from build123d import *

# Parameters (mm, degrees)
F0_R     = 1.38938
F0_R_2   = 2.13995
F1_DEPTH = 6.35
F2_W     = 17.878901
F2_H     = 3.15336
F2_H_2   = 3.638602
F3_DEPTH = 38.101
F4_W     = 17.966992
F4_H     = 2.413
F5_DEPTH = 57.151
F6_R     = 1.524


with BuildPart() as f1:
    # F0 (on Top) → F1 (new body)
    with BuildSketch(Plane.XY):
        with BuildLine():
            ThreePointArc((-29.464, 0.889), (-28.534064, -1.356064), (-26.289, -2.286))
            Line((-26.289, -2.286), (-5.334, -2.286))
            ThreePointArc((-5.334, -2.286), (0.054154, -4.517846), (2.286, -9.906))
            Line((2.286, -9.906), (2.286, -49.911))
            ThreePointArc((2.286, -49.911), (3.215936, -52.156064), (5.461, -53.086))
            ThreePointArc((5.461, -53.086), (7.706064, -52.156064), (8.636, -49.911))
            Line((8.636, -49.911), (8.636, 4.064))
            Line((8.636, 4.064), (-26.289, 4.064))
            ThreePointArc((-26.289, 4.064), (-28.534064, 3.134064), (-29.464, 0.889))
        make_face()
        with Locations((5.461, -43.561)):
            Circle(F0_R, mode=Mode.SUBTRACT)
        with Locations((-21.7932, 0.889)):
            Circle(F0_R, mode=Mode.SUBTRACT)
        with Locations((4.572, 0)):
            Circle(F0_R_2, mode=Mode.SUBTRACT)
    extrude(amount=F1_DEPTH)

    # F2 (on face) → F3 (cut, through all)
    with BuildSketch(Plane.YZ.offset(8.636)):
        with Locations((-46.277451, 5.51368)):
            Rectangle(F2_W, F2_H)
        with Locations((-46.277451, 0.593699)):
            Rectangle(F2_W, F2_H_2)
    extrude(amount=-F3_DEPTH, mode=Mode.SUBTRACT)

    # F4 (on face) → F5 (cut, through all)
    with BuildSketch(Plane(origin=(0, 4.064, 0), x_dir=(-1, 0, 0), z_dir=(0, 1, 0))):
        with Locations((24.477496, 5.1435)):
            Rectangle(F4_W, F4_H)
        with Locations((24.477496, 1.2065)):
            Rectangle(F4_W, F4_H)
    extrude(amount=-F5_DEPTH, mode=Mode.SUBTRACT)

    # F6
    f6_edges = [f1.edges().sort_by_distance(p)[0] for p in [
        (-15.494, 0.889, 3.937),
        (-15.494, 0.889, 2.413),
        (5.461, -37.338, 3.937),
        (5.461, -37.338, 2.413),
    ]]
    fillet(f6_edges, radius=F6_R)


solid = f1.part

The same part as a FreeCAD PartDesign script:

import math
import FreeCAD as App
import Part
import Sketcher

V = App.Vector
Q = App.Units.Quantity


def edges_at(feature, points):
    """Names of the edges that pass closest to the given points."""
    edges = feature.Shape.Edges
    near = lambda p: min(range(len(edges)), key=lambda i: edges[i].distToShape(Part.Vertex(*p))[0])
    return sorted({f"Edge{near(p) + 1}" for p in points})


def add_polygon(sketch, points):
    """Adds a closed chain of lines whose ends are joined by coincident constraints."""
    first, n = sketch.GeometryCount, len(points)
    for a, b in zip(points, points[1:] + points[:1]):
        sketch.addGeometry(Part.LineSegment(App.Vector(*a, 0), App.Vector(*b, 0)), False)
    for i in range(n):
        sketch.addConstraint(Sketcher.Constraint("Coincident", first + i, 2, first + (i + 1) % n, 1))

doc = App.newDocument("Part")
body = doc.addObject("PartDesign::Body", "Body")

# Sketch on XY plane
sketch1 = body.newObject("Sketcher::SketchObject", "Sketch")
sketch1.AttachmentSupport = (doc.getObject("XY_Plane"), [""])
sketch1.MapMode = "FlatFace"
sketch1.addGeometry([
    Part.ArcOfCircle(Part.Circle(V(-26.289, 0.889, 0), V(0, 0, 1), 3.175), math.radians(-179.999998), math.radians(-90.000002)),  # 0
    Part.LineSegment(V(-26.289, -2.286, 0), V(-5.334, -2.286, 0)),  # 1
    Part.ArcOfCircle(Part.Circle(V(-5.333999, -9.905999, 0), V(0, 0, 1), 7.619999), math.radians(-0.000008), math.radians(90.000008)),  # 2
    Part.LineSegment(V(2.286, -9.906, 0), V(2.286, -49.911, 0)),  # 3
    Part.ArcOfCircle(Part.Circle(V(5.461, -49.911, 0), V(0, 0, 1), 3.175), math.radians(-179.999998), math.radians(-90.000002)),  # 4
    Part.ArcOfCircle(Part.Circle(V(5.461, -49.911, 0), V(0, 0, 1), 3.175), math.radians(-89.999998), math.radians(-0.000002)),  # 5
    Part.LineSegment(V(8.636, -49.911, 0), V(8.636, 4.064, 0)),  # 6
    Part.LineSegment(V(8.636, 4.064, 0), V(-26.289, 4.064, 0)),  # 7
    Part.ArcOfCircle(Part.Circle(V(-26.289, 0.889, 0), V(0, 0, 1), 3.175), math.radians(90.000002), math.radians(179.999998)),  # 8
    Part.Circle(V(5.461, -43.561, 0), V(0, 0, 1), 1.38938),  # 9
    Part.Circle(V(-21.7932, 0.889, 0), V(0, 0, 1), 1.38938),  # 10
    Part.Circle(V(4.572, 0, 0), V(0, 0, 1), 2.13995),  # 11
], False)
sketch1.addConstraint([
    Sketcher.Constraint("Tangent", 0, 2, 1, 1),
    Sketcher.Constraint("Tangent", 1, 2, 2, 2),
    Sketcher.Constraint("Tangent", 2, 1, 3, 1),
    Sketcher.Constraint("Tangent", 3, 2, 4, 1),
    Sketcher.Constraint("Tangent", 4, 2, 5, 1),
    Sketcher.Constraint("Tangent", 5, 2, 6, 1),
    Sketcher.Constraint("Coincident", 6, 2, 7, 1),
    Sketcher.Constraint("Tangent", 7, 2, 8, 1),
    Sketcher.Constraint("Tangent", 8, 2, 0, 1),
    Sketcher.Constraint("Horizontal", 1),
    Sketcher.Constraint("Vertical", 3),
    Sketcher.Constraint("Vertical", 6),
    Sketcher.Constraint("Horizontal", 7),
    Sketcher.Constraint("Equal", 0, 4),
    Sketcher.Constraint("Equal", 4, 5),
    Sketcher.Constraint("Equal", 5, 8),
    Sketcher.Constraint("Equal", 9, 10),
    Sketcher.Constraint("PointOnObject", 11, 3, -1),
    Sketcher.Constraint("Horizontal", 8, 3, 10, 3),
    Sketcher.Constraint("Horizontal", 10, 3, 8, 2),
    Sketcher.Constraint("Vertical", 5, 3, 9, 3),
    Sketcher.Constraint("Vertical", 9, 3, 4, 2),
    Sketcher.Constraint("Radius", 2, Q("0.3 in")),
    Sketcher.Constraint("Radius", 0, Q("0.125 in")),
    Sketcher.Constraint("DistanceY", 4, 3, 0, 3, Q("2 in")),
    Sketcher.Constraint("Diameter", 9, Q("0.1094 in")),
    Sketcher.Constraint("Diameter", 11, Q("0.1685 in")),
    Sketcher.Constraint("DistanceX", 1, 1, 1, 2, Q("0.825 in")),
    Sketcher.Constraint("DistanceX", 2, 3, -1, 1, Q("0.21 in")),
    Sketcher.Constraint("DistanceY", 2, 3, -1, 1, Q("0.39 in")),
    Sketcher.Constraint("DistanceX", -1, 1, 11, 3, Q("0.18 in")),
    Sketcher.Constraint("DistanceY", 4, 3, 9, 3, Q("0.25 in")),
    Sketcher.Constraint("DistanceX", 10, 3, -1, 1, Q("0.858 in")),
])
pad1 = body.newObject("PartDesign::Pad", "Pad")
pad1.Profile = sketch1
pad1.Length = Q("0.25 in")

# Sketch on YZ plane
sketch2 = body.newObject("Sketcher::SketchObject", "Sketch001")
sketch2.AttachmentSupport = (doc.getObject("YZ_Plane"), [""])
sketch2.MapMode = "FlatFace"
sketch2.AttachmentOffset = App.Placement(V(0, 0, 0.34 * 25.4), App.Rotation())
add_polygon(sketch2, [(-55.216901, 7.09036), (-55.216901, 3.937), (-37.338, 3.937), (-37.338, 7.09036)])  # lines 0-3
add_polygon(sketch2, [(-55.216901, 2.413), (-55.216901, -1.225602), (-37.338, -1.225602), (-37.338, 2.413)])  # lines 4-7
sketch2.addConstraint([
    Sketcher.Constraint("Vertical", 0),
    Sketcher.Constraint("Horizontal", 1),
    Sketcher.Constraint("Vertical", 2),
    Sketcher.Constraint("Horizontal", 3),
    Sketcher.Constraint("Vertical", 4),
    Sketcher.Constraint("Horizontal", 5),
    Sketcher.Constraint("Vertical", 6),
    Sketcher.Constraint("Horizontal", 7),
    Sketcher.Constraint("Vertical", 3, 2, 4, 2),
    Sketcher.Constraint("Vertical", 2, 2, 5, 2),
    Sketcher.Constraint("DistanceX", 1, 2, -1, 1, Q("1.47 in")),
    Sketcher.Constraint("DistanceY", 6, 2, 1, 2, Q("0.06 in")),
    Sketcher.Constraint("DistanceY", -1, 1, 0, 2, Q("0.155 in")),
    Sketcher.Constraint("DistanceX", 1, 1, 1, 2, Q("17.878901 mm")),
    Sketcher.Constraint("DistanceY", 4, 2, 4, 1, Q("3.638602 mm")),
    Sketcher.Constraint("DistanceY", 4, 2, 3, 2, Q("0.3274001 in")),
])
pocket1 = body.newObject("PartDesign::Pocket", "Pocket")
pocket1.Profile = sketch2
pocket1.Type = "ThroughAll"

# Sketch on XZ plane
sketch3 = body.newObject("Sketcher::SketchObject", "Sketch002")
sketch3.AttachmentSupport = (doc.getObject("XZ_Plane"), [""])
sketch3.MapMode = "FlatFace"
sketch3.AttachmentOffset = App.Placement(V(0, 0, -0.16 * 25.4), App.Rotation())
add_polygon(sketch3, [(-15.494, 6.35), (-15.494, 3.937), (-33.460992, 3.937), (-33.460992, 6.35)])  # lines 0-3
add_polygon(sketch3, [(-15.494, 2.413), (-15.494, 0), (-33.460992, 0), (-33.460992, 2.413)])  # lines 4-7
sketch3.addConstraint([
    Sketcher.Constraint("Vertical", 0),
    Sketcher.Constraint("Horizontal", 1),
    Sketcher.Constraint("Vertical", 2),
    Sketcher.Constraint("Horizontal", 3),
    Sketcher.Constraint("Vertical", 4),
    Sketcher.Constraint("Horizontal", 5),
    Sketcher.Constraint("Vertical", 6),
    Sketcher.Constraint("Horizontal", 7),
    Sketcher.Constraint("PointOnObject", 4, 2, -1),
    Sketcher.Constraint("Vertical", 3, 2, 4, 2),
    Sketcher.Constraint("Vertical", 2, 2, 5, 2),
    Sketcher.Constraint("Equal", 2, 4),
    Sketcher.Constraint("DistanceY", 0, 2, 0, 1, Q("0.095 in")),
    Sketcher.Constraint("DistanceX", 0, 2, -1, 1, Q("0.61 in")),
    Sketcher.Constraint("DistanceY", -1, 1, 2, 2, Q("0.25 in")),
    Sketcher.Constraint("DistanceX", 1, 2, 1, 1, Q("17.966992 mm")),
])
pocket2 = body.newObject("PartDesign::Pocket", "Pocket001")
pocket2.Profile = sketch3
pocket2.Type = "ThroughAll"
pocket2.Reversed = True
doc.recompute()

fillet = body.newObject("PartDesign::Fillet", "Fillet")
fillet.Base = (pocket2, edges_at(pocket2, [
    (-15.494, 0.889, 3.937),
    (-15.494, 0.889, 2.413),
    (5.461, -37.338, 3.937),
    (5.461, -37.338, 2.413),
]))
fillet.Radius = Q("0.06 in")

doc.recompute()
